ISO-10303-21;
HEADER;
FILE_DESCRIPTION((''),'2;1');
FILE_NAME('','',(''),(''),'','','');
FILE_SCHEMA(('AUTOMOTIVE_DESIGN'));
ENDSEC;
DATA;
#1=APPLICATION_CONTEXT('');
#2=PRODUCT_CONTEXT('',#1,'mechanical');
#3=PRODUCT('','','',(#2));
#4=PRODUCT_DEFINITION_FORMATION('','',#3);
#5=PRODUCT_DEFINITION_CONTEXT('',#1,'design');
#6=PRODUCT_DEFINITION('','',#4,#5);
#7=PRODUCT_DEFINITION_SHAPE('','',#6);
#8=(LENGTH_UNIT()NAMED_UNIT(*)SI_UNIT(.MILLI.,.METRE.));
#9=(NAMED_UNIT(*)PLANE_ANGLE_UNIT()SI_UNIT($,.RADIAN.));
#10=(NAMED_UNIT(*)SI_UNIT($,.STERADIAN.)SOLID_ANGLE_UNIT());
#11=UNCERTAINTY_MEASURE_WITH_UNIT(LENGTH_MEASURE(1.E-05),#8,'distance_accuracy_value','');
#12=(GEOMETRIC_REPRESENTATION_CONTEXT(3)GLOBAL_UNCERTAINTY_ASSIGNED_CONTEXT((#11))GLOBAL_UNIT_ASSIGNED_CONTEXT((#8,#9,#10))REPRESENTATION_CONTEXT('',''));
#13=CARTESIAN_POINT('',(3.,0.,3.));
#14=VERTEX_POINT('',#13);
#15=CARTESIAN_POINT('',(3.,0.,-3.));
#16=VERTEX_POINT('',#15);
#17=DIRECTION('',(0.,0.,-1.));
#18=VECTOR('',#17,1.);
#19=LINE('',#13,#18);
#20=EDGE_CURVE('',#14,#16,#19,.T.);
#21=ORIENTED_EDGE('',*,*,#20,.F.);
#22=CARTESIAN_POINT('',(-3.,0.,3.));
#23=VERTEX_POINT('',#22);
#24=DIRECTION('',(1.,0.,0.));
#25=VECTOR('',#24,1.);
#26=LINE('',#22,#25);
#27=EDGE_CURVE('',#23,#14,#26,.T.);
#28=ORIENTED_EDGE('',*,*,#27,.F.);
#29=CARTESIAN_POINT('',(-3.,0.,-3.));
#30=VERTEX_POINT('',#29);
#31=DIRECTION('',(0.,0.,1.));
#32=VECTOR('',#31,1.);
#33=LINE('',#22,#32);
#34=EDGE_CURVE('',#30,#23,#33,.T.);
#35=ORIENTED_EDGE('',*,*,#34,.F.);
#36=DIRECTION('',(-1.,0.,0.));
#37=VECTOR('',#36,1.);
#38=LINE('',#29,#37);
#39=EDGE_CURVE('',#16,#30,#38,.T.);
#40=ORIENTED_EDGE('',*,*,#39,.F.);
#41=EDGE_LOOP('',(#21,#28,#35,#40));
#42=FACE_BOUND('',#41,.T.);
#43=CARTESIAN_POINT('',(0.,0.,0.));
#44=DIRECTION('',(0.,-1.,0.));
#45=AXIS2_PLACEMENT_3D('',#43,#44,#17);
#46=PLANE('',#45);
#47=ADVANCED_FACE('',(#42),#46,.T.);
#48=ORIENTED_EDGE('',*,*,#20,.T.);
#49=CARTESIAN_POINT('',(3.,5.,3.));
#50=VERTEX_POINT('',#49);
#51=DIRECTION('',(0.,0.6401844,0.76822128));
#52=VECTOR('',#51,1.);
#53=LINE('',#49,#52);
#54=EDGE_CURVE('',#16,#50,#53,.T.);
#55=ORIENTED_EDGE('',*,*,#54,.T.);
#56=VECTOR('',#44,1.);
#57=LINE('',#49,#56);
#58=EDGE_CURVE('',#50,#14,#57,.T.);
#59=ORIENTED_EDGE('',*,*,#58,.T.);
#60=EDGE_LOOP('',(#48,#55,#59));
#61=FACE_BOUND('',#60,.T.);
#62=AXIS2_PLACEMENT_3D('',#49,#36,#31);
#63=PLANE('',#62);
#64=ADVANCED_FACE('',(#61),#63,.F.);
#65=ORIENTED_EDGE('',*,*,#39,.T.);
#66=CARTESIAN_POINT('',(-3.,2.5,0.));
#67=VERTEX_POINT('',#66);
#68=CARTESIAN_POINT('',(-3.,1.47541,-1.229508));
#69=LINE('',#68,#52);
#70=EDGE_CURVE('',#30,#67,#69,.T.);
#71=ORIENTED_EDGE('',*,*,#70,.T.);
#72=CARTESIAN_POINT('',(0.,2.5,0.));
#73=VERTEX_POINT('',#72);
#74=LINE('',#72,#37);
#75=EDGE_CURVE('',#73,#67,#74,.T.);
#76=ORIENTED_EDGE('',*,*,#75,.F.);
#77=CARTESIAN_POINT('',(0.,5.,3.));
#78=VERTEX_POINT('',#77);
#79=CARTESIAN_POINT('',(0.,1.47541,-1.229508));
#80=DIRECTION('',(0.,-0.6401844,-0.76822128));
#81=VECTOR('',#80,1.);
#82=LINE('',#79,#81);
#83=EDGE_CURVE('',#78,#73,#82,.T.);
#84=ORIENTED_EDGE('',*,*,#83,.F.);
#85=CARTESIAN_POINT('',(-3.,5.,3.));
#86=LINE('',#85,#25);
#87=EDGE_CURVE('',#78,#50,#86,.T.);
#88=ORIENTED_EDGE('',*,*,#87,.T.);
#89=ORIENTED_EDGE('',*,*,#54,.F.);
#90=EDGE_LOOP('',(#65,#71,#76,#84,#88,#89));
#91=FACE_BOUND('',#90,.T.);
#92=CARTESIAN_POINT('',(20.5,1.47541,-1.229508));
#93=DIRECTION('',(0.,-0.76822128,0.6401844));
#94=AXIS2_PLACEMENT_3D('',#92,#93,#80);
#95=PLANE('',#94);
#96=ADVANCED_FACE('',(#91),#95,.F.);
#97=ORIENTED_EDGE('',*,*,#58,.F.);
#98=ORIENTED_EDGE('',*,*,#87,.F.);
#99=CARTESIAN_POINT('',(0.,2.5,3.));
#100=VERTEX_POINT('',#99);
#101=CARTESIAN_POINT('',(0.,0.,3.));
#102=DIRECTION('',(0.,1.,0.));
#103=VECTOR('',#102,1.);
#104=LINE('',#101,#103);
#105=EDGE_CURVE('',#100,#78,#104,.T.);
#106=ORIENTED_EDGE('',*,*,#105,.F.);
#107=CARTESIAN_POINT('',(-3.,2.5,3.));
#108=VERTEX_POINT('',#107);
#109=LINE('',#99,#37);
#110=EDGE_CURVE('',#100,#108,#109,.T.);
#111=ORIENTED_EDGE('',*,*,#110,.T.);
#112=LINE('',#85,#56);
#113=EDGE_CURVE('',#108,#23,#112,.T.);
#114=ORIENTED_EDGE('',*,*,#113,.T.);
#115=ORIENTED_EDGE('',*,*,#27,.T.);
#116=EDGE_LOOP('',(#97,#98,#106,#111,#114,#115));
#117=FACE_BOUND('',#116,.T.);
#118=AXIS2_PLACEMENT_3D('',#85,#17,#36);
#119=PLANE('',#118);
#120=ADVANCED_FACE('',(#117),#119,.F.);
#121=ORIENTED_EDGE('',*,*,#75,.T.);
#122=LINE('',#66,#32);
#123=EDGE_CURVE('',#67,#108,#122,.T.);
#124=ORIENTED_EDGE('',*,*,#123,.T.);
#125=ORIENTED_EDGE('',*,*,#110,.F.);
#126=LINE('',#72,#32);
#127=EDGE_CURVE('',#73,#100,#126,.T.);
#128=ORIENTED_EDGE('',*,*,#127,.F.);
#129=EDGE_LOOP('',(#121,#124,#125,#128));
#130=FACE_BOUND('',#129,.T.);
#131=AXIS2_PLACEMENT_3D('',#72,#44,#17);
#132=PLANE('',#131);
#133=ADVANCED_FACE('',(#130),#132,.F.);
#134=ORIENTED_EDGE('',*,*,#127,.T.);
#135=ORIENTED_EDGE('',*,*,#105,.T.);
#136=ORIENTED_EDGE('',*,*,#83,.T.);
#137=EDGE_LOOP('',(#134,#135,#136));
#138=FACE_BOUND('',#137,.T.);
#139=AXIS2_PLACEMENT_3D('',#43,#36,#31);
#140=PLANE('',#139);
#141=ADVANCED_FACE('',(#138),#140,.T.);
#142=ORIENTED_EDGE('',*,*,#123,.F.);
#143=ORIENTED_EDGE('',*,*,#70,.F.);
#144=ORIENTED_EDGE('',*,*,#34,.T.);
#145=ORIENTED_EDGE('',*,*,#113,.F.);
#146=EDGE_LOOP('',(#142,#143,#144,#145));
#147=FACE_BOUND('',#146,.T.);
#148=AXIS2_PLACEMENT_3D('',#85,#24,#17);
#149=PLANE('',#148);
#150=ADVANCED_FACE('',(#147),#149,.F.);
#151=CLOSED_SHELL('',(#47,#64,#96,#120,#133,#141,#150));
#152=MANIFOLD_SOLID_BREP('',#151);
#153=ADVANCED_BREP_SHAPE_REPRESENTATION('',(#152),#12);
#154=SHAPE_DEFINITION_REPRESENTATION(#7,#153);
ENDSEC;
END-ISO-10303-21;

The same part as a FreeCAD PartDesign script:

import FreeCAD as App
import Part
import Sketcher

V = App.Vector
Q = App.Units.Quantity

doc = App.newDocument("Part")
params = doc.addObject("Spreadsheet::Sheet", "Params")
for row, (alias, value) in enumerate([
    ("sketch1_width", "6 mm"),
    ("pad1_length", "5 mm"),
    ("sketch2_width", "5 mm"),
    ("sketch2_height", "6 mm"),
    ("pocket1_length", "23.5 mm"),
    ("sketch3_height", "3 mm"),
    ("sketch3_width", "2.5 mm"),
    ("pocket2_length", "3 mm"),
], start=1):
    params.set(f"A{row}", alias)
    params.set(f"B{row}", "=" + value)
    params.setAlias(f"B{row}", alias)

body = doc.addObject("PartDesign::Body", "Body")

sketch1 = body.newObject("Sketcher::SketchObject", "Sketch")
sketch1.AttachmentSupport = (doc.getObject("XZ_Plane"), [""])
sketch1.MapMode = "FlatFace"
sketch1.addGeometry([
    Part.LineSegment(V(-3, -3, 0), V(-3, 3, 0)),
    Part.LineSegment(V(-3, 3, 0), V(3, 3, 0)),
    Part.LineSegment(V(3, 3, 0), V(3, -3, 0)),
    Part.LineSegment(V(3, -3, 0), V(-3, -3, 0)),
], False)
sketch1.addConstraint([
    Sketcher.Constraint("Coincident", 0, 2, 1, 1),
    Sketcher.Constraint("Coincident", 1, 2, 2, 1),
    Sketcher.Constraint("Coincident", 2, 2, 3, 1),
    Sketcher.Constraint("Coincident", 3, 2, 0, 1),
    Sketcher.Constraint("Vertical", 0),
    Sketcher.Constraint("Horizontal", 1),
    Sketcher.Constraint("Vertical", 2),
    Sketcher.Constraint("Horizontal", 3),
    Sketcher.Constraint("Symmetric", 0, 2, 2, 2, -1, 1),
    Sketcher.Constraint("Equal", 3, 0),
    Sketcher.Constraint("DistanceX", 1, 1, 1, 2, Q("6 mm")),
])
sketch1.setExpression("Constraints[10]", "Params.sketch1_width")
pad1 = body.newObject("PartDesign::Pad", "Pad")
pad1.Profile = sketch1
pad1.setExpression("Length", "Params.pad1_length")
pad1.Reversed = True

sketch2 = body.newObject("Sketcher::SketchObject", "Sketch001")
sketch2.AttachmentSupport = (doc.getObject("YZ_Plane"), [""])
sketch2.MapMode = "FlatFace"
sketch2.AttachmentOffset = App.Placement(V(0, 0, -3), App.Rotation())
sketch2.addGeometry([
    Part.LineSegment(V(0, -3, 0), V(5, 3, 0)),
    Part.LineSegment(V(5, 3, 0), V(5, -3, 0)),
    Part.LineSegment(V(5, -3, 0), V(0, -3, 0)),
], False)
sketch2.addConstraint([
    Sketcher.Constraint("Coincident", 0, 2, 1, 1),
    Sketcher.Constraint("Coincident", 1, 2, 2, 1),
    Sketcher.Constraint("Coincident", 2, 2, 0, 1),
    Sketcher.Constraint("Vertical", 1),
    Sketcher.Constraint("Horizontal", 2),
    Sketcher.Constraint("PointOnObject", 2, 2, -2),
    Sketcher.Constraint("DistanceX", 2, 2, 2, 1, Q("5 mm")),
    Sketcher.Constraint("DistanceY", 1, 2, 1, 1, Q("6 mm")),
    Sketcher.Constraint("DistanceY", -1, 1, 0, 2, Q("3 mm")),
])
sketch2.setExpression("Constraints[6]", "Params.sketch2_width")
sketch2.setExpression("Constraints[7]", "Params.sketch2_height")
pocket1 = body.newObject("PartDesign::Pocket", "Pocket")
pocket1.Profile = sketch2
pocket1.setExpression("Length", "Params.pocket1_length")
pocket1.Reversed = True

sketch3 = body.newObject("Sketcher::SketchObject", "Sketch002")
sketch3.AttachmentSupport = (doc.getObject("YZ_Plane"), [""])
sketch3.MapMode = "FlatFace"
sketch3.AttachmentOffset = App.Placement(V(0, 0, -3), App.Rotation())
sketch3.addGeometry([
    Part.LineSegment(V(5, 3, 0), V(2.5, 0, 0)),
    Part.LineSegment(V(2.5, 0, 0), V(2.5, 3, 0)),
    Part.LineSegment(V(2.5, 3, 0), V(5, 3, 0)),
], False)
sketch3.addConstraint([
    Sketcher.Constraint("Coincident", 0, 2, 1, 1),
    Sketcher.Constraint("Coincident", 1, 2, 2, 1),
    Sketcher.Constraint("Coincident", 2, 2, 0, 1),
    Sketcher.Constraint("Vertical", 1),
    Sketcher.Constraint("Horizontal", 2),
    Sketcher.Constraint("PointOnObject", 0, 2, -1),
    Sketcher.Constraint("DistanceY", 1, 1, 1, 2, Q("3 mm")),
    Sketcher.Constraint("DistanceX", 2, 1, 2, 2, Q("2.5 mm")),
    Sketcher.Constraint("DistanceX", -1, 1, 2, 2, Q("5 mm")),
])
sketch3.setExpression("Constraints[6]", "Params.sketch3_height")
sketch3.setExpression("Constraints[7]", "Params.sketch3_width")
pocket2 = body.newObject("PartDesign::Pocket", "Pocket001")
pocket2.Profile = sketch3
pocket2.setExpression("Length", "Params.pocket2_length")
pocket2.Reversed = True

doc.recompute()
